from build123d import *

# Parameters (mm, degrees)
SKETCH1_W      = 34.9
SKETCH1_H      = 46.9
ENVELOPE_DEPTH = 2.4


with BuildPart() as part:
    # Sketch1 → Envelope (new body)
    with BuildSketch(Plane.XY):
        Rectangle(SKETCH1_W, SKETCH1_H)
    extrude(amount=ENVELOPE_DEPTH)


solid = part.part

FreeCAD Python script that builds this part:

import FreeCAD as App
import Part
import Sketcher


def add_polygon(sketch, points):
    """Adds a closed chain of lines whose ends are joined by coincident constraints."""
    first, n = sketch.GeometryCount, len(points)
    for a, b in zip(points, points[1:] + points[:1]):
        sketch.addGeometry(Part.LineSegment(App.Vector(*a, 0), App.Vector(*b, 0)), False)
    for i in range(n):
        sketch.addConstraint(Sketcher.Constraint("Coincident", first + i, 2, first + (i + 1) % n, 1))

doc = App.newDocument("Part")
body = doc.addObject("PartDesign::Body", "Body")

sketch1 = body.newObject("Sketcher::SketchObject", "Sketch")
sketch1.AttachmentSupport = (doc.getObject("XY_Plane"), [""])
sketch1.MapMode = "FlatFace"
add_polygon(sketch1, [(-17.45, 23.45), (-17.45, -23.45), (17.45, -23.45), (17.45, 23.45)])
sketch1.addConstraint([
    Sketcher.Constraint("Vertical", 0),
    Sketcher.Constraint("Horizontal", 1),
    Sketcher.Constraint("Vertical", 2),
    Sketcher.Constraint("Horizontal", 3),
    Sketcher.Constraint("Symmetric", 0, 2, 2, 2, -1, 1),
    Sketcher.Constraint("DistanceX", 1, 1, 1, 2, 34.9),
    Sketcher.Constraint("DistanceY", 0, 2, 0, 1, 46.9),
])
pad1 = body.newObject("PartDesign::Pad", "Pad")
pad1.Profile = sketch1
pad1.Length = 2.4

doc.recompute()
